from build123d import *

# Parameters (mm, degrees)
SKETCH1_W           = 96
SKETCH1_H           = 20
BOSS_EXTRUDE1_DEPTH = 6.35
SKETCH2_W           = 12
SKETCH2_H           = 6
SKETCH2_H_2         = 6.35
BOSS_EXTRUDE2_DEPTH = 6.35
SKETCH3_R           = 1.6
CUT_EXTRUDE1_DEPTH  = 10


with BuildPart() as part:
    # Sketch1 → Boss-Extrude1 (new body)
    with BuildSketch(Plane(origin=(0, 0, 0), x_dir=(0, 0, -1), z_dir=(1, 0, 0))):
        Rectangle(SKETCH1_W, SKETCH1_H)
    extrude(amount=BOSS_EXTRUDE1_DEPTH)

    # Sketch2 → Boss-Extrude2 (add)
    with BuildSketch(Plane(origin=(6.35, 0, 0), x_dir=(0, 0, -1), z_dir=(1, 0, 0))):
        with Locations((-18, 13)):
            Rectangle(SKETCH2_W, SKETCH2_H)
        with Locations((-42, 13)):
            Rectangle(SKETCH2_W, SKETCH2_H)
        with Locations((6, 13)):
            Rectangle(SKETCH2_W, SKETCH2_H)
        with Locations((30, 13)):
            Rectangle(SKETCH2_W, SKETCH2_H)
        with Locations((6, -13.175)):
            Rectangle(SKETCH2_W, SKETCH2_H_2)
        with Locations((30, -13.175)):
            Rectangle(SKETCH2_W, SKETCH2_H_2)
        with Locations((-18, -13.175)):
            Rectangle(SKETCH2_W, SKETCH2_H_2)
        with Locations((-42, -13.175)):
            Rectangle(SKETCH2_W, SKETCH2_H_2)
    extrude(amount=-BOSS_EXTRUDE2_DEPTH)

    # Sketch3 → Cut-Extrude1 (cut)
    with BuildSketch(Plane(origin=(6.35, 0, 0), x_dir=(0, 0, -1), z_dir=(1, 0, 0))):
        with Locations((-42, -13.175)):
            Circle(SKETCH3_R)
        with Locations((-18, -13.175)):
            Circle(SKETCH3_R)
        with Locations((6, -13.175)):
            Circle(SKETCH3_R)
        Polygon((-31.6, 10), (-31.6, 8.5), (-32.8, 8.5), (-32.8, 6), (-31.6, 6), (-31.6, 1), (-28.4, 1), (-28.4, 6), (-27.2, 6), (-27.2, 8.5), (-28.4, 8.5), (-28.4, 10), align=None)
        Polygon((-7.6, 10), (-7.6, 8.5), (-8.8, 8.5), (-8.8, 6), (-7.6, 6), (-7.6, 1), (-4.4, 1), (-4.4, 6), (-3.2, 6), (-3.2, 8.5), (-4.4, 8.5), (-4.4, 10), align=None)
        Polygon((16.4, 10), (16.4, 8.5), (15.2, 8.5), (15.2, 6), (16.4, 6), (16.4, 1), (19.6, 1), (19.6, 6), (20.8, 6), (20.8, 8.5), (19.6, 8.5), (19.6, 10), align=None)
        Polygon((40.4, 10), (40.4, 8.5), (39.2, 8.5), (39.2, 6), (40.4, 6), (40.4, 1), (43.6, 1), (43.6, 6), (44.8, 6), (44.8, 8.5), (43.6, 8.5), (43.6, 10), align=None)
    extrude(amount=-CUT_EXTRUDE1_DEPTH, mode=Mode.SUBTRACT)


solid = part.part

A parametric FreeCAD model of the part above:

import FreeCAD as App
import Part
import Sketcher


def add_polygon(sketch, points):
    """Adds a closed chain of lines whose ends are joined by coincident constraints."""
    first, n = sketch.GeometryCount, len(points)
    for a, b in zip(points, points[1:] + points[:1]):
        sketch.addGeometry(Part.LineSegment(App.Vector(*a, 0), App.Vector(*b, 0)), False)
    for i in range(n):
        sketch.addConstraint(Sketcher.Constraint("Coincident", first + i, 2, first + (i + 1) % n, 1))

doc = App.newDocument("Part")
body = doc.addObject("PartDesign::Body", "Body")

# Sketch on YZ plane
sketch1 = body.newObject("Sketcher::SketchObject", "Sketch")
sketch1.AttachmentSupport = (doc.getObject("YZ_Plane"), [""])
sketch1.MapMode = "FlatFace"
add_polygon(sketch1, [(10, 48), (-10, 48), (-10, -48), (10, -48)])  # lines 0-3
sketch1.addConstraint(Sketcher.Constraint("Horizontal", 0))
sketch1.addConstraint(Sketcher.Constraint("Vertical", 1))
sketch1.addConstraint(Sketcher.Constraint("Horizontal", 2))
sketch1.addConstraint(Sketcher.Constraint("Vertical", 3))
sketch1.addConstraint(Sketcher.Constraint("Symmetric", 0, 2, 2, 2, -1, 1))
sketch1.addConstraint(Sketcher.Constraint("DistanceX", 0, 2, 0, 1, 20.0))
sketch1.addConstraint(Sketcher.Constraint("DistanceY", 1, 2, 1, 1, 96.0))
pad1 = body.newObject("PartDesign::Pad", "Pad")
pad1.Profile = sketch1
pad1.Length = 6.35

# Sketch on YZ plane
sketch2 = body.newObject("Sketcher::SketchObject", "Sketch001")
sketch2.AttachmentSupport = (doc.getObject("YZ_Plane"), [""])
sketch2.MapMode = "FlatFace"
sketch2.AttachmentOffset = App.Placement(App.Vector(0, 0, 6.35), App.Rotation())
add_polygon(sketch2, [(16, 24), (10, 24), (10, 12), (16, 12)])  # lines 0-3
add_polygon(sketch2, [(16, 48), (10, 48), (10, 36), (16, 36)])  # lines 4-7
add_polygon(sketch2, [(16, 0), (10, 0), (10, -12), (16, -12)])  # lines 8-11
add_polygon(sketch2, [(16, -24), (10, -24), (10, -36), (16, -36)])  # lines 12-15
add_polygon(sketch2, [(-10, 0), (-16.35, 0), (-16.35, -12), (-10, -12)])  # lines 16-19
add_polygon(sketch2, [(-10, -24), (-16.35, -24), (-16.35, -36), (-10, -36)])  # lines 20-23
add_polygon(sketch2, [(-10, 24), (-16.35, 24), (-16.35, 12), (-10, 12)])  # lines 24-27
add_polygon(sketch2, [(-10, 48), (-16.35, 48), (-16.35, 36), (-10, 36)])  # lines 28-31
sketch2.addConstraint(Sketcher.Constraint("Horizontal", 0))
sketch2.addConstraint(Sketcher.Constraint("Vertical", 1))
sketch2.addConstraint(Sketcher.Constraint("Horizontal", 2))
sketch2.addConstraint(Sketcher.Constraint("Vertical", 3))
sketch2.addConstraint(Sketcher.Constraint("Horizontal", 4))
sketch2.addConstraint(Sketcher.Constraint("Vertical", 5))
sketch2.addConstraint(Sketcher.Constraint("Horizontal", 6))
sketch2.addConstraint(Sketcher.Constraint("Vertical", 7))
sketch2.addConstraint(Sketcher.Constraint("Horizontal", 8))
sketch2.addConstraint(Sketcher.Constraint("Vertical", 9))
sketch2.addConstraint(Sketcher.Constraint("Horizontal", 10))
sketch2.addConstraint(Sketcher.Constraint("Vertical", 11))
sketch2.addConstraint(Sketcher.Constraint("Horizontal", 12))
sketch2.addConstraint(Sketcher.Constraint("Vertical", 13))
sketch2.addConstraint(Sketcher.Constraint("Horizontal", 14))
sketch2.addConstraint(Sketcher.Constraint("Vertical", 15))
sketch2.addConstraint(Sketcher.Constraint("Horizontal", 16))
sketch2.addConstraint(Sketcher.Constraint("Vertical", 17))
sketch2.addConstraint(Sketcher.Constraint("Horizontal", 18))
sketch2.addConstraint(Sketcher.Constraint("Vertical", 19))
sketch2.addConstraint(Sketcher.Constraint("Horizontal", 20))
sketch2.addConstraint(Sketcher.Constraint("Vertical", 21))
sketch2.addConstraint(Sketcher.Constraint("Horizontal", 22))
sketch2.addConstraint(Sketcher.Constraint("Vertical", 23))
sketch2.addConstraint(Sketcher.Constraint("Horizontal", 24))
sketch2.addConstraint(Sketcher.Constraint("Vertical", 25))
sketch2.addConstraint(Sketcher.Constraint("Horizontal", 26))
sketch2.addConstraint(Sketcher.Constraint("Vertical", 27))
sketch2.addConstraint(Sketcher.Constraint("Horizontal", 28))
sketch2.addConstraint(Sketcher.Constraint("Vertical", 29))
sketch2.addConstraint(Sketcher.Constraint("Horizontal", 30))
sketch2.addConstraint(Sketcher.Constraint("Vertical", 31))
sketch2.addConstraint(Sketcher.Constraint("Symmetric", 1, 2, 18, 2, -1, 1))
sketch2.addConstraint(Sketcher.Constraint("Symmetric", 8, 2, 19, 2, -1, 1))
sketch2.addConstraint(Sketcher.Constraint("Symmetric", 5, 2, 22, 2, -1, 1))
sketch2.addConstraint(Sketcher.Constraint("Symmetric", 0, 2, 23, 2, -1, 1))
sketch2.addConstraint(Sketcher.Constraint("Symmetric", 9, 2, 26, 2, -1, 1))
sketch2.addConstraint(Sketcher.Constraint("Symmetric", 12, 2, 27, 2, -1, 1))
sketch2.addConstraint(Sketcher.Constraint("Symmetric", 13, 2, 30, 2, -1, 1))
sketch2.addConstraint(Sketcher.Constraint("Symmetric", 2, 2, 10, 2, -1))
sketch2.addConstraint(Sketcher.Constraint("Symmetric", 6, 2, 14, 2, -1))
sketch2.addConstraint(Sketcher.Constraint("Symmetric", 3, 2, 15, 2, -1))
sketch2.addConstraint(Sketcher.Constraint("PointOnObject", 8, 2, -1))
sketch2.addConstraint(Sketcher.Constraint("Horizontal", 7, 2, 28, 2))
sketch2.addConstraint(Sketcher.Constraint("Vertical", 17, 2, 20, 2))
sketch2.addConstraint(Sketcher.Constraint("Vertical", 21, 2, 24, 2))
sketch2.addConstraint(Sketcher.Constraint("Vertical", 25, 2, 28, 2))
sketch2.addConstraint(Sketcher.Constraint("Equal", 3, 5))
sketch2.addConstraint(Sketcher.Constraint("Equal", 7, 9))
sketch2.addConstraint(Sketcher.Constraint("Equal", 11, 13))
sketch2.addConstraint(Sketcher.Constraint("DistanceX", 0, 2, 0, 1, 6.0))
sketch2.addConstraint(Sketcher.Constraint("DistanceY", 1, 2, 1, 1, 12.0))
sketch2.addConstraint(Sketcher.Constraint("DistanceX", -1, 1, 0, 2, 10.0))
sketch2.addConstraint(Sketcher.Constraint("DistanceX", 16, 2, 16, 1, 6.35))
pad2 = body.newObject("PartDesign::Pad", "Pad001")
pad2.Profile = sketch2
pad2.Length = 6.35
pad2.Reversed = True

# Sketch on YZ plane
sketch3 = body.newObject("Sketcher::SketchObject", "Sketch002")
sketch3.AttachmentSupport = (doc.getObject("YZ_Plane"), [""])
sketch3.MapMode = "FlatFace"
sketch3.AttachmentOffset = App.Placement(App.Vector(0, 0, 6.35), App.Rotation())
sketch3.addGeometry(Part.Circle(App.Vector(-13.175, 42, 0), App.Vector(0, 0, 1), 1.6), False)  # 0
sketch3.addGeometry(Part.Circle(App.Vector(-13.175, 18, 0), App.Vector(0, 0, 1), 1.6), False)  # 1
sketch3.addGeometry(Part.Circle(App.Vector(-13.175, -6, 0), App.Vector(0, 0, 1), 1.6), False)  # 2
add_polygon(sketch3, [(10, 31.6), (8.5, 31.6), (8.5, 32.8), (6, 32.8), (6, 31.6), (1, 31.6), (1, 28.4), (6, 28.4), (6, 27.2), (8.5, 27.2), (8.5, 28.4), (10, 28.4)])  # lines 3-14
add_polygon(sketch3, [(10, 7.6), (8.5, 7.6), (8.5, 8.8), (6, 8.8), (6, 7.6), (1, 7.6), (1, 4.4), (6, 4.4), (6, 3.2), (8.5, 3.2), (8.5, 4.4), (10, 4.4)])  # lines 15-26
add_polygon(sketch3, [(10, -16.4), (8.5, -16.4), (8.5, -15.2), (6, -15.2), (6, -16.4), (1, -16.4), (1, -19.6), (6, -19.6), (6, -20.8), (8.5, -20.8), (8.5, -19.6), (10, -19.6)])  # lines 27-38
add_polygon(sketch3, [(10, -40.4), (8.5, -40.4), (8.5, -39.2), (6, -39.2), (6, -40.4), (1, -40.4), (1, -43.6), (6, -43.6), (6, -44.8), (8.5, -44.8), (8.5, -43.6), (10, -43.6)])  # lines 39-50
sketch3.addConstraint(Sketcher.Constraint("Horizontal", 3))
sketch3.addConstraint(Sketcher.Constraint("Vertical", 4))
sketch3.addConstraint(Sketcher.Constraint("Horizontal", 5))
sketch3.addConstraint(Sketcher.Constraint("Vertical", 6))
sketch3.addConstraint(Sketcher.Constraint("Horizontal", 7))
sketch3.addConstraint(Sketcher.Constraint("Vertical", 8))
sketch3.addConstraint(Sketcher.Constraint("Horizontal", 9))
sketch3.addConstraint(Sketcher.Constraint("Vertical", 10))
sketch3.addConstraint(Sketcher.Constraint("Horizontal", 11))
sketch3.addConstraint(Sketcher.Constraint("Vertical", 12))
sketch3.addConstraint(Sketcher.Constraint("Horizontal", 13))
sketch3.addConstraint(Sketcher.Constraint("Vertical", 14))
sketch3.addConstraint(Sketcher.Constraint("Horizontal", 15))
sketch3.addConstraint(Sketcher.Constraint("Vertical", 16))
sketch3.addConstraint(Sketcher.Constraint("Horizontal", 17))
sketch3.addConstraint(Sketcher.Constraint("Vertical", 18))
sketch3.addConstraint(Sketcher.Constraint("Horizontal", 19))
sketch3.addConstraint(Sketcher.Constraint("Vertical", 20))
sketch3.addConstraint(Sketcher.Constraint("Horizontal", 21))
sketch3.addConstraint(Sketcher.Constraint("Vertical", 22))
sketch3.addConstraint(Sketcher.Constraint("Horizontal", 23))
sketch3.addConstraint(Sketcher.Constraint("Vertical", 24))
sketch3.addConstraint(Sketcher.Constraint("Horizontal", 25))
sketch3.addConstraint(Sketcher.Constraint("Vertical", 26))
sketch3.addConstraint(Sketcher.Constraint("Horizontal", 27))
sketch3.addConstraint(Sketcher.Constraint("Vertical", 28))
sketch3.addConstraint(Sketcher.Constraint("Horizontal", 29))
sketch3.addConstraint(Sketcher.Constraint("Vertical", 30))
sketch3.addConstraint(Sketcher.Constraint("Horizontal", 31))
sketch3.addConstraint(Sketcher.Constraint("Vertical", 32))
sketch3.addConstraint(Sketcher.Constraint("Horizontal", 33))
sketch3.addConstraint(Sketcher.Constraint("Vertical", 34))
sketch3.addConstraint(Sketcher.Constraint("Horizontal", 35))
sketch3.addConstraint(Sketcher.Constraint("Vertical", 36))
sketch3.addConstraint(Sketcher.Constraint("Horizontal", 37))
sketch3.addConstraint(Sketcher.Constraint("Vertical", 38))
sketch3.addConstraint(Sketcher.Constraint("Horizontal", 39))
sketch3.addConstraint(Sketcher.Constraint("Vertical", 40))
sketch3.addConstraint(Sketcher.Constraint("Horizontal", 41))
sketch3.addConstraint(Sketcher.Constraint("Vertical", 42))
sketch3.addConstraint(Sketcher.Constraint("Horizontal", 43))
sketch3.addConstraint(Sketcher.Constraint("Vertical", 44))
sketch3.addConstraint(Sketcher.Constraint("Horizontal", 45))
sketch3.addConstraint(Sketcher.Constraint("Vertical", 46))
sketch3.addConstraint(Sketcher.Constraint("Horizontal", 47))
sketch3.addConstraint(Sketcher.Constraint("Vertical", 48))
sketch3.addConstraint(Sketcher.Constraint("Horizontal", 49))
sketch3.addConstraint(Sketcher.Constraint("Vertical", 50))
sketch3.addConstraint(Sketcher.Constraint("Equal", 0, 1))
sketch3.addConstraint(Sketcher.Constraint("Equal", 1, 2))
sketch3.addConstraint(Sketcher.Constraint("Horizontal", 3, 2, 6, 2))
sketch3.addConstraint(Sketcher.Constraint("Horizontal", 9, 2, 12, 2))
sketch3.addConstraint(Sketcher.Constraint("Horizontal", 15, 2, 18, 2))
sketch3.addConstraint(Sketcher.Constraint("Horizontal", 21, 2, 24, 2))
sketch3.addConstraint(Sketcher.Constraint("Horizontal", 27, 2, 30, 2))
sketch3.addConstraint(Sketcher.Constraint("Horizontal", 33, 2, 36, 2))
sketch3.addConstraint(Sketcher.Constraint("Horizontal", 39, 2, 42, 2))
sketch3.addConstraint(Sketcher.Constraint("Horizontal", 45, 2, 48, 2))
sketch3.addConstraint(Sketcher.Constraint("Vertical", 0, 3, 1, 3))
sketch3.addConstraint(Sketcher.Constraint("Vertical", 1, 3, 2, 3))
sketch3.addConstraint(Sketcher.Constraint("Vertical", 6, 2, 9, 2))
sketch3.addConstraint(Sketcher.Constraint("Vertical", 4, 2, 11, 2))
sketch3.addConstraint(Sketcher.Constraint("Vertical", 12, 2, 15, 2))
sketch3.addConstraint(Sketcher.Constraint("Vertical", 10, 2, 17, 2))
sketch3.addConstraint(Sketcher.Constraint("Vertical", 8, 2, 19, 2))
sketch3.addConstraint(Sketcher.Constraint("Vertical", 18, 2, 21, 2))
sketch3.addConstraint(Sketcher.Constraint("Vertical", 16, 2, 23, 2))
sketch3.addConstraint(Sketcher.Constraint("Vertical", 14, 2, 25, 2))
sketch3.addConstraint(Sketcher.Constraint("Vertical", 24, 2, 27, 2))
sketch3.addConstraint(Sketcher.Constraint("Vertical", 22, 2, 29, 2))
sketch3.addConstraint(Sketcher.Constraint("Vertical", 20, 2, 31, 2))
sketch3.addConstraint(Sketcher.Constraint("Vertical", 30, 2, 33, 2))
sketch3.addConstraint(Sketcher.Constraint("Vertical", 28, 2, 35, 2))
sketch3.addConstraint(Sketcher.Constraint("Vertical", 26, 2, 37, 2))
sketch3.addConstraint(Sketcher.Constraint("Vertical", 36, 2, 39, 2))
sketch3.addConstraint(Sketcher.Constraint("Vertical", 34, 2, 41, 2))
sketch3.addConstraint(Sketcher.Constraint("Vertical", 32, 2, 43, 2))
sketch3.addConstraint(Sketcher.Constraint("Vertical", 42, 2, 45, 2))
sketch3.addConstraint(Sketcher.Constraint("Vertical", 40, 2, 47, 2))
sketch3.addConstraint(Sketcher.Constraint("Vertical", 38, 2, 49, 2))
sketch3.addConstraint(Sketcher.Constraint("Equal", 6, 10))
sketch3.addConstraint(Sketcher.Constraint("Equal", 12, 16))
sketch3.addConstraint(Sketcher.Constraint("Equal", 14, 20))
sketch3.addConstraint(Sketcher.Constraint("Equal", 18, 22))
sketch3.addConstraint(Sketcher.Constraint("Equal", 24, 28))
sketch3.addConstraint(Sketcher.Constraint("Equal", 26, 32))
sketch3.addConstraint(Sketcher.Constraint("Equal", 30, 34))
sketch3.addConstraint(Sketcher.Constraint("Equal", 36, 40))
sketch3.addConstraint(Sketcher.Constraint("Equal", 38, 44))
sketch3.addConstraint(Sketcher.Constraint("Equal", 42, 46))
sketch3.addConstraint(Sketcher.Constraint("Diameter", 0, 3.2))
sketch3.addConstraint(Sketcher.Constraint("DistanceX", 7, 2, 7, 1, 5.0))
sketch3.addConstraint(Sketcher.Constraint("DistanceX", 3, 2, 3, 1, 1.5))
sketch3.addConstraint(Sketcher.Constraint("DistanceX", 5, 2, 5, 1, 2.5))
sketch3.addConstraint(Sketcher.Constraint("DistanceY", 4, 1, 4, 2, 1.2))
sketch3.addConstraint(Sketcher.Constraint("DistanceY", 8, 2, 8, 1, 3.2))
sketch3.addConstraint(Sketcher.Constraint("DistanceY", -1, 1, 0, 3, 42.0))
sketch3.addConstraint(Sketcher.Constraint("DistanceY", -1, 1, 1, 3, 18.0))
sketch3.addConstraint(Sketcher.Constraint("DistanceY", 2, 3, -1, 1, 6.0))
sketch3.addConstraint(Sketcher.Constraint("DistanceX", -1, 1, 5, 2, 6.0))
sketch3.addConstraint(Sketcher.Constraint("DistanceY", -1, 1, 3, 2, 31.6))
sketch3.addConstraint(Sketcher.Constraint("DistanceY", -1, 1, 15, 2, 7.6))
sketch3.addConstraint(Sketcher.Constraint("DistanceY", 27, 2, -1, 1, 16.4))
sketch3.addConstraint(Sketcher.Constraint("DistanceY", 39, 2, -1, 1, 40.4))
sketch3.addConstraint(Sketcher.Constraint("DistanceX", 0, 3, -1, 1, 13.175))
pocket1 = body.newObject("PartDesign::Pocket", "Pocket")
pocket1.Profile = sketch3
pocket1.Length = 10

doc.recompute()
